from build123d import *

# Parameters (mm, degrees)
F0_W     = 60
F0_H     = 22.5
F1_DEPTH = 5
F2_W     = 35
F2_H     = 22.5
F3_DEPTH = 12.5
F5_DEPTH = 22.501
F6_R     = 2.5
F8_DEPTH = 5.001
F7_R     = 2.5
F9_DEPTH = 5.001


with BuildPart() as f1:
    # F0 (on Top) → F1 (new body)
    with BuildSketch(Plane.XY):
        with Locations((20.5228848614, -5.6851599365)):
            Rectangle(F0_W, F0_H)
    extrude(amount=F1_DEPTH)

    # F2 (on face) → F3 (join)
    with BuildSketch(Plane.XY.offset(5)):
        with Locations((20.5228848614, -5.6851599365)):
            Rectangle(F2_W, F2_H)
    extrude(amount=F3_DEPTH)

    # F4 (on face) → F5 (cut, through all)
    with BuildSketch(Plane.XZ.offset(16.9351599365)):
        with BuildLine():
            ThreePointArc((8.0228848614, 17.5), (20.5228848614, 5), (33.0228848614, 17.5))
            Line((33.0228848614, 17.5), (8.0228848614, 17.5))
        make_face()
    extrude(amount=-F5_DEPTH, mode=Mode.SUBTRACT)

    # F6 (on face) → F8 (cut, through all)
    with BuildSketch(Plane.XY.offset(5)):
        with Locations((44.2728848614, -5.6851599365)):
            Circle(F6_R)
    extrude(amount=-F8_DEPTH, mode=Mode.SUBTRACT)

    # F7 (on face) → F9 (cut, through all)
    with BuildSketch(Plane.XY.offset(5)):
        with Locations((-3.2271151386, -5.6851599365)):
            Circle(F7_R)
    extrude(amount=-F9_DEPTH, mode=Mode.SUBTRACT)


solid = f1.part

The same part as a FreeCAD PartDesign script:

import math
import FreeCAD as App
import Part
import Sketcher

V = App.Vector
Q = App.Units.Quantity

doc = App.newDocument("Part")
body = doc.addObject("PartDesign::Body", "Body")

# Sketch on XY plane
sketch1 = doc.addObject("Sketcher::SketchObject", "Sketch")
body.addObject(sketch1)
sketch1.AttachmentSupport = (doc.XY_Plane, [""])
sketch1.MapMode = "FlatFace"
sketch1.addGeometry([
    Part.LineSegment(V(-9, 6, 0), V(-9, -17, 0)),
    Part.LineSegment(V(-9, -17, 0), V(51, -17, 0)),
    Part.LineSegment(V(51, -17, 0), V(51, 6, 0)),
    Part.LineSegment(V(51, 6, 0), V(-9, 6, 0)),
], False)
sketch1.addConstraint([
    Sketcher.Constraint("Coincident", 0, 2, 1, 1),
    Sketcher.Constraint("Coincident", 1, 2, 2, 1),
    Sketcher.Constraint("Coincident", 2, 2, 3, 1),
    Sketcher.Constraint("Coincident", 3, 2, 0, 1),
    Sketcher.Constraint("Vertical", 0),
    Sketcher.Constraint("Horizontal", 1),
    Sketcher.Constraint("Vertical", 2),
    Sketcher.Constraint("Horizontal", 3),
    Sketcher.Constraint("DistanceX", 1, 1, 1, 2, Q("60 mm")),
    Sketcher.Constraint("DistanceY", 0, 2, 0, 1, Q("22.5 mm")),
    Sketcher.Constraint("DistanceY", 0, 2, -1, 1, Q("16.93516 mm")),
    Sketcher.Constraint("DistanceX", 0, 2, -1, 1, Q("9.477115 mm")),
])
pad1 = doc.addObject("PartDesign::Pad", "Pad")
body.addObject(pad1)
pad1.Profile = sketch1
pad1.Length = 5

# Sketch on XY plane
sketch2 = doc.addObject("Sketcher::SketchObject", "Sketch001")
body.addObject(sketch2)
sketch2.AttachmentSupport = (doc.XY_Plane, [""])
sketch2.MapMode = "FlatFace"
sketch2.AttachmentOffset = App.Placement(V(0, 0, 5), App.Rotation())
sketch2.addGeometry([
    Part.LineSegment(V(3, 6, 0), V(3, -17, 0)),
    Part.LineSegment(V(3, -17, 0), V(38, -17, 0)),
    Part.LineSegment(V(38, -17, 0), V(38, 6, 0)),
    Part.LineSegment(V(38, 6, 0), V(3, 6, 0)),
], False)
sketch2.addConstraint([
    Sketcher.Constraint("Coincident", 0, 2, 1, 1),
    Sketcher.Constraint("Coincident", 1, 2, 2, 1),
    Sketcher.Constraint("Coincident", 2, 2, 3, 1),
    Sketcher.Constraint("Coincident", 3, 2, 0, 1),
    Sketcher.Constraint("Vertical", 0),
    Sketcher.Constraint("Horizontal", 1),
    Sketcher.Constraint("Vertical", 2),
    Sketcher.Constraint("Horizontal", 3),
    Sketcher.Constraint("DistanceX", 1, 1, 1, 2, Q("35 mm")),
    Sketcher.Constraint("DistanceY", 0, 2, 0, 1, Q("22.5 mm")),
    Sketcher.Constraint("DistanceY", 0, 2, -1, 1, Q("16.93516 mm")),
    Sketcher.Constraint("DistanceX", -1, 1, 0, 2, Q("3.022885 mm")),
])
pad2 = doc.addObject("PartDesign::Pad", "Pad001")
body.addObject(pad2)
pad2.Profile = sketch2
pad2.Length = 12.5

# Sketch on XZ plane
sketch3 = doc.addObject("Sketcher::SketchObject", "Sketch002")
body.addObject(sketch3)
sketch3.AttachmentSupport = (doc.XZ_Plane, [""])
sketch3.MapMode = "FlatFace"
sketch3.AttachmentOffset = App.Placement(V(0, 0, 16.93516), App.Rotation())
sketch3.addGeometry([
    Part.ArcOfCircle(Part.Circle(V(21, 18, 0), V(0, 0, 1), 12), math.radians(180), math.radians(360)),
    Part.LineSegment(V(33, 18, 0), V(8, 18, 0)),
], False)
sketch3.addConstraint([
    Sketcher.Constraint("Coincident", 0, 1, 1, 2),
    Sketcher.Constraint("Coincident", 1, 1, 0, 2),
    Sketcher.Constraint("Horizontal", 1),
    Sketcher.Constraint("Radius", 0, Q("12.5 mm")),
    Sketcher.Constraint("DistanceY", -1, 1, 0, 3, Q("17.5 mm")),
    Sketcher.Constraint("DistanceY", -1, 1, 0, 1, Q("17.5 mm")),
    Sketcher.Constraint("DistanceX", -1, 1, 0, 3, Q("20.522885 mm")),
])
pocket1 = doc.addObject("PartDesign::Pocket", "Pocket")
body.addObject(pocket1)
pocket1.Profile = sketch3
pocket1.Type = "ThroughAll"

# Sketch on XY plane
sketch4 = doc.addObject("Sketcher::SketchObject", "Sketch003")
body.addObject(sketch4)
sketch4.AttachmentSupport = (doc.XY_Plane, [""])
sketch4.MapMode = "FlatFace"
sketch4.AttachmentOffset = App.Placement(V(0, 0, 5), App.Rotation())
sketch4.addGeometry(Part.Circle(V(44.3, -5.7, 0), V(0, 0, 1), 2.5), False)
sketch4.addConstraint([
    Sketcher.Constraint("Diameter", 0, Q("5 mm")),
    Sketcher.Constraint("DistanceY", 0, 3, -1, 1, Q("5.68516 mm")),
    Sketcher.Constraint("DistanceX", -1, 1, 0, 3, Q("44.272885 mm")),
])
pocket2 = doc.addObject("PartDesign::Pocket", "Pocket001")
body.addObject(pocket2)
pocket2.Profile = sketch4
pocket2.Type = "ThroughAll"

# Sketch on XY plane
sketch5 = doc.addObject("Sketcher::SketchObject", "Sketch004")
body.addObject(sketch5)
sketch5.AttachmentSupport = (doc.XY_Plane, [""])
sketch5.MapMode = "FlatFace"
sketch5.AttachmentOffset = App.Placement(V(0, 0, 5), App.Rotation())
sketch5.addGeometry(Part.Circle(V(-3.2, -5.7, 0), V(0, 0, 1), 2.5), False)
sketch5.addConstraint([
    Sketcher.Constraint("Diameter", 0, Q("5 mm")),
    Sketcher.Constraint("DistanceY", 0, 3, -1, 1, Q("5.68516 mm")),
    Sketcher.Constraint("DistanceX", 0, 3, -1, 1, Q("3.227115 mm")),
])
pocket3 = doc.addObject("PartDesign::Pocket", "Pocket002")
body.addObject(pocket3)
pocket3.Profile = sketch5
pocket3.Type = "ThroughAll"

doc.recompute()
